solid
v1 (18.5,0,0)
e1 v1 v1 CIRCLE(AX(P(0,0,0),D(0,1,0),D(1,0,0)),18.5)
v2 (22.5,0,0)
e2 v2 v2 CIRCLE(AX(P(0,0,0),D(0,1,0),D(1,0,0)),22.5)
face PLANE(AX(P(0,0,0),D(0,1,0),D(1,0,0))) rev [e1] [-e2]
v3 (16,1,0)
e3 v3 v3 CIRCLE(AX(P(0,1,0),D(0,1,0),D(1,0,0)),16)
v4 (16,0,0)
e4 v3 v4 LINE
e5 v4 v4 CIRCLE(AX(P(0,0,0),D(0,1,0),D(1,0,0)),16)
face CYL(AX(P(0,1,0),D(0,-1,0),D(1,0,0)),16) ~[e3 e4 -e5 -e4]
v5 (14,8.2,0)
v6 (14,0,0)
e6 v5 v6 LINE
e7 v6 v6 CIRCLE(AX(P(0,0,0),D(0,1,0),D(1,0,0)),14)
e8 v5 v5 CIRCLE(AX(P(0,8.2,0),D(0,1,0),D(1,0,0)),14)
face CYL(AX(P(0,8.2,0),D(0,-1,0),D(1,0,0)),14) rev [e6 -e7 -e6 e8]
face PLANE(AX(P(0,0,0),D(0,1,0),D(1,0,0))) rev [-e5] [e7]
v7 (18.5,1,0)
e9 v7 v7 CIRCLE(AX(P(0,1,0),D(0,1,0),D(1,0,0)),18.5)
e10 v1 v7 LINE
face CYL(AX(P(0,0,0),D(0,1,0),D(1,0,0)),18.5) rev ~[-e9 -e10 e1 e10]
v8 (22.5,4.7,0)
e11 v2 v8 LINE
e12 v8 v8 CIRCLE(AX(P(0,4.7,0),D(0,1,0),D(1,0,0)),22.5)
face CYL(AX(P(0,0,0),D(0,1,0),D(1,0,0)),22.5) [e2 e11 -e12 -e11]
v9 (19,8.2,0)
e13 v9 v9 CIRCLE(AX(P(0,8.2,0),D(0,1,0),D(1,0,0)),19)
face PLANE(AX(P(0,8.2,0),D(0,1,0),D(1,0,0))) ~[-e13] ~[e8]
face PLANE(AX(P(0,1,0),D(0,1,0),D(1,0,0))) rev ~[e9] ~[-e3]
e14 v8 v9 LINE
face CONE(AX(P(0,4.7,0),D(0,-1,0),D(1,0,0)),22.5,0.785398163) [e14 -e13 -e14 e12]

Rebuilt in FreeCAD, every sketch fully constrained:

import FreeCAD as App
import Part
import Sketcher
Q = App.Units.Quantity

doc = App.newDocument("Part")
body = doc.addObject("PartDesign::Body", "Body")

sketch1 = body.newObject("Sketcher::SketchObject", "Sketch")
sketch1.AttachmentSupport = (doc.getObject("XY_Plane"), [""])
sketch1.MapMode = "FlatFace"
sketch1.addGeometry([
    Part.LineSegment(App.Vector(14, 8.2, 0), App.Vector(14, 0, 0)),
    Part.LineSegment(App.Vector(14, 0, 0), App.Vector(16, 0, 0)),
    Part.LineSegment(App.Vector(16, 0, 0), App.Vector(16, 1, 0)),
    Part.LineSegment(App.Vector(16, 1, 0), App.Vector(18.5, 1, 0)),
    Part.LineSegment(App.Vector(18.5, 1, 0), App.Vector(18.5, 0, 0)),
    Part.LineSegment(App.Vector(18.5, 0, 0), App.Vector(22.5, 0, 0)),
    Part.LineSegment(App.Vector(22.5, 0, 0), App.Vector(22.5, 4.7, 0)),
    Part.LineSegment(App.Vector(22.5, 4.7, 0), App.Vector(19, 8.2, 0)),
    Part.LineSegment(App.Vector(19, 8.2, 0), App.Vector(14, 8.2, 0)),
], False)
sketch1.addConstraint([
    Sketcher.Constraint("Coincident", 0, 2, 1, 1),
    Sketcher.Constraint("Coincident", 1, 2, 2, 1),
    Sketcher.Constraint("Coincident", 2, 2, 3, 1),
    Sketcher.Constraint("Coincident", 3, 2, 4, 1),
    Sketcher.Constraint("Coincident", 4, 2, 5, 1),
    Sketcher.Constraint("Coincident", 5, 2, 6, 1),
    Sketcher.Constraint("Coincident", 6, 2, 7, 1),
    Sketcher.Constraint("Coincident", 7, 2, 8, 1),
    Sketcher.Constraint("Coincident", 8, 2, 0, 1),
    Sketcher.Constraint("Vertical", 0),
    Sketcher.Constraint("Horizontal", 1),
    Sketcher.Constraint("Vertical", 2),
    Sketcher.Constraint("Horizontal", 3),
    Sketcher.Constraint("Vertical", 4),
    Sketcher.Constraint("Horizontal", 5),
    Sketcher.Constraint("Vertical", 6),
    Sketcher.Constraint("Horizontal", 8),
    Sketcher.Constraint("PointOnObject", 0, 2, -1),
    Sketcher.Constraint("PointOnObject", 4, 2, -1),
    Sketcher.Constraint("DistanceY", 2, 1, 2, 2, 1.0),
    Sketcher.Constraint("Angle", 7, Q("135 deg")),
    Sketcher.Constraint("DistanceY", 0, 2, 0, 1, 8.2),
    Sketcher.Constraint("DistanceX", 1, 1, 1, 2, 2.0),
    Sketcher.Constraint("DistanceX", 5, 1, 5, 2, 4.0),
    Sketcher.Constraint("DistanceX", 8, 2, 8, 1, 5.0),
    Sketcher.Constraint("DistanceX", 3, 1, 3, 2, 2.5),
    Sketcher.Constraint("DistanceX", -1, 1, 0, 2, 14.0),
])
revolution = body.newObject("PartDesign::Revolution", "Revolution")
revolution.Profile = sketch1
revolution.ReferenceAxis = (sketch1, ["V_Axis"])
revolution.Angle = 360

doc.recompute()
